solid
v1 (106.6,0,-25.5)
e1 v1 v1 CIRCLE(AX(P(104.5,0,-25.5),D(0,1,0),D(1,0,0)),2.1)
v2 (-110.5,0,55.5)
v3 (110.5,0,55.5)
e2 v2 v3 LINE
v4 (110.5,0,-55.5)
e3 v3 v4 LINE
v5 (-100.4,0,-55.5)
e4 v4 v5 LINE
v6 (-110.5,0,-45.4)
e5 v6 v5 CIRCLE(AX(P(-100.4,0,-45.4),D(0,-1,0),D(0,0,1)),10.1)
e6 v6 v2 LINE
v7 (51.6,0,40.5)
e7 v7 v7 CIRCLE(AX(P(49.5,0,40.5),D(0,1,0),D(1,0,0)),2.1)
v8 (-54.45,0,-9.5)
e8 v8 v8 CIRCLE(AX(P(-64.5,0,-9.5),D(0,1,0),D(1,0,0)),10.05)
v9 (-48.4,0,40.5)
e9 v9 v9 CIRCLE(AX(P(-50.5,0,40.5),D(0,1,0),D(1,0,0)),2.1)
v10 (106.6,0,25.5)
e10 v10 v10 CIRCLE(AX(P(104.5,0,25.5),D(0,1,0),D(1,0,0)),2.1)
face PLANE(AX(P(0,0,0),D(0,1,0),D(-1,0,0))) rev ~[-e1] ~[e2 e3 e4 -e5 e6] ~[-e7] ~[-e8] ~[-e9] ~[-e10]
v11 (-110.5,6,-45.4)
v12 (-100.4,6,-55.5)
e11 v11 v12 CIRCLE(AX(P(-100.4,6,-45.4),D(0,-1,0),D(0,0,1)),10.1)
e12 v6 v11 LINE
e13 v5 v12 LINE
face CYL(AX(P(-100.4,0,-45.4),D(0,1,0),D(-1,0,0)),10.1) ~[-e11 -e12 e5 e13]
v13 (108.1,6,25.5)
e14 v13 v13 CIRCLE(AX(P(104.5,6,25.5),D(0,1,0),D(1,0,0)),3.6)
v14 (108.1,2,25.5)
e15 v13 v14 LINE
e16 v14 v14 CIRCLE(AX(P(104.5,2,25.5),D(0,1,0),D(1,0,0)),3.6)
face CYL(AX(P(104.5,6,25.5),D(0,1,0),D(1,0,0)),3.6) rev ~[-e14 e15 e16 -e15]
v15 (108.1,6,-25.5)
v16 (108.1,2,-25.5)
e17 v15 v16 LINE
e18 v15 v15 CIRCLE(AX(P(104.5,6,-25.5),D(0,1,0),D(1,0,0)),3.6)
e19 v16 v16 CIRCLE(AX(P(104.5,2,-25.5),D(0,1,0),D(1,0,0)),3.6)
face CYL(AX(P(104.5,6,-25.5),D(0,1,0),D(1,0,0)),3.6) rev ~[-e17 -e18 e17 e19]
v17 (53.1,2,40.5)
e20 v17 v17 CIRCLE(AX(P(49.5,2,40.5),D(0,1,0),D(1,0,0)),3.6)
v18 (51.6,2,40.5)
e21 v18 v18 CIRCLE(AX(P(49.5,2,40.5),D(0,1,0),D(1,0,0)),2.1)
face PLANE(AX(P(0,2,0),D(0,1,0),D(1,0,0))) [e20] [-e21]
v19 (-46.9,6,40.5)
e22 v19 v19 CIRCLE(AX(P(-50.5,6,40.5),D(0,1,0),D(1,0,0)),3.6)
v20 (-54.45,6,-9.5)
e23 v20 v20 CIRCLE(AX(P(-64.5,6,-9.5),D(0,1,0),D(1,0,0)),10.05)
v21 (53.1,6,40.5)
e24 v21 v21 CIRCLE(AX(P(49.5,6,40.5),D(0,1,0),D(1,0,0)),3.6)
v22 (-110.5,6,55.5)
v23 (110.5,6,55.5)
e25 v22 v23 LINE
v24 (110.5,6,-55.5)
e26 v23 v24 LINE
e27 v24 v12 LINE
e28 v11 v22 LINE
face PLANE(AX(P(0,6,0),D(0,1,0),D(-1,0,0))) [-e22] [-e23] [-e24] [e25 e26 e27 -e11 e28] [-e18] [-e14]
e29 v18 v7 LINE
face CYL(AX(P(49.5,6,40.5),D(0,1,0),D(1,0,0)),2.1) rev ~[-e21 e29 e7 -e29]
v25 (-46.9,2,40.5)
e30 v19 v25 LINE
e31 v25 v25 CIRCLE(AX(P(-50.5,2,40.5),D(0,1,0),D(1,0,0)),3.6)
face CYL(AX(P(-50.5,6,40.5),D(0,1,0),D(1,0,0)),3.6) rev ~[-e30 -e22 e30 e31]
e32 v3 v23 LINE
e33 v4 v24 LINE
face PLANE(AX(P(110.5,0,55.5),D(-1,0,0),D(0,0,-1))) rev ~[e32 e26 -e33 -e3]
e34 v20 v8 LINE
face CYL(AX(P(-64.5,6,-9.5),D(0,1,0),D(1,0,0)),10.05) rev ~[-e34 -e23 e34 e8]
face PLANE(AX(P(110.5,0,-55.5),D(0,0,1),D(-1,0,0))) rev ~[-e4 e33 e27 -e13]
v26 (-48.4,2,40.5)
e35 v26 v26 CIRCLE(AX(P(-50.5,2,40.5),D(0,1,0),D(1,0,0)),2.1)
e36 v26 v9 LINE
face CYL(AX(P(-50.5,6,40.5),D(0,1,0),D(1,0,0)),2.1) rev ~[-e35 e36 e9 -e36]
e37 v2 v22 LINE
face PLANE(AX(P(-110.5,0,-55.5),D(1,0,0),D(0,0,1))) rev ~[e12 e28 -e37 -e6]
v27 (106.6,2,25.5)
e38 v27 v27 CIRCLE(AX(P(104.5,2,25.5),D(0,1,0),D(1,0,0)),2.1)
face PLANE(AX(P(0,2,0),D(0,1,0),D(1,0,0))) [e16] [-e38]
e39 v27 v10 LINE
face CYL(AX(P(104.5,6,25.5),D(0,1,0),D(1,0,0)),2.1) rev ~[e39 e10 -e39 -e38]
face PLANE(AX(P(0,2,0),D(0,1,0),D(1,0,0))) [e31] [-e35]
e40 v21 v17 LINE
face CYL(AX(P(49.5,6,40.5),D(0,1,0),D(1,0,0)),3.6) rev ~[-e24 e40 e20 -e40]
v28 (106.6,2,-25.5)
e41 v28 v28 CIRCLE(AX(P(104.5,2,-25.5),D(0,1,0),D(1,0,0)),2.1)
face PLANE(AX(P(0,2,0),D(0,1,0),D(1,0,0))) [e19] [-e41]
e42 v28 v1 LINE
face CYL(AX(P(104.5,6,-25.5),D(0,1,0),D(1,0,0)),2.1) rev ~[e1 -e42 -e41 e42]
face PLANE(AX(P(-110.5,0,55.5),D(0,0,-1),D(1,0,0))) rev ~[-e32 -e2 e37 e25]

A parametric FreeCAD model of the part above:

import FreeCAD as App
import Part
import Sketcher
from FreeCAD import Vector


def edges_at(feature, points):
    """Names of the edges that pass closest to the given points."""
    edges = feature.Shape.Edges
    near = lambda p: min(range(len(edges)), key=lambda i: edges[i].distToShape(Part.Vertex(*p))[0])
    return sorted({f"Edge{near(p) + 1}" for p in points})

doc = App.newDocument("Part")
params = doc.addObject("Spreadsheet::Sheet", "Params")
for row, (alias, value) in enumerate([
    ("sketch1_width", "221 mm"),
    ("sketch1_height", "111 mm"),
    ("pad1_length", "6 mm"),
    ("fillet_radius", "10.1 mm"),
    ("sketch2_diameter", "20.1 mm"),
    ("pocket1_length", "6 mm"),
    ("sketch3_diameter", "4.2 mm"),
    ("pocket2_length", "10 mm"),
    ("sketch4_diameter", "7.2 mm"),
    ("pocket3_length", "4 mm"),
    ("sketch5_diameter", "4.2 mm"),
    ("pocket4_length", "6 mm"),
    ("sketch6_diameter", "7.2 mm"),
    ("pocket5_length", "4 mm"),
], start=1):
    params.set(f"A{row}", alias)
    params.set(f"B{row}", "=" + value)
    params.setAlias(f"B{row}", alias)

body = doc.addObject("PartDesign::Body", "Body")

# Sketch on XZ plane
sketch1 = body.newObject("Sketcher::SketchObject", "Sketch")
sketch1.AttachmentSupport = (doc.getObject("XZ_Plane"), [""])
sketch1.MapMode = "FlatFace"
sketch1.addGeometry(Part.LineSegment(Vector(-110.5, -55.5, 0), Vector(-110.5, 55.5, 0)), False)
sketch1.addGeometry(Part.LineSegment(Vector(-110.5, 55.5, 0), Vector(110.5, 55.5, 0)), False)
sketch1.addGeometry(Part.LineSegment(Vector(110.5, 55.5, 0), Vector(110.5, -55.5, 0)), False)
sketch1.addGeometry(Part.LineSegment(Vector(110.5, -55.5, 0), Vector(-110.5, -55.5, 0)), False)
sketch1.addConstraint(Sketcher.Constraint("Coincident", 0, 2, 1, 1))
sketch1.addConstraint(Sketcher.Constraint("Coincident", 1, 2, 2, 1))
sketch1.addConstraint(Sketcher.Constraint("Coincident", 2, 2, 3, 1))
sketch1.addConstraint(Sketcher.Constraint("Coincident", 3, 2, 0, 1))
sketch1.addConstraint(Sketcher.Constraint("Vertical", 0))
sketch1.addConstraint(Sketcher.Constraint("Horizontal", 1))
sketch1.addConstraint(Sketcher.Constraint("Vertical", 2))
sketch1.addConstraint(Sketcher.Constraint("Horizontal", 3))
sketch1.addConstraint(Sketcher.Constraint("Symmetric", 0, 2, 2, 2, -1, 1))
sketch1.addConstraint(Sketcher.Constraint("DistanceX", 1, 1, 1, 2, 221.0))
sketch1.addConstraint(Sketcher.Constraint("DistanceY", 0, 1, 0, 2, 111.0))
sketch1.setExpression("Constraints[9]", "Params.sketch1_width")
sketch1.setExpression("Constraints[10]", "Params.sketch1_height")
pad1 = body.newObject("PartDesign::Pad", "Pad")
pad1.Profile = sketch1
pad1.setExpression("Length", "Params.pad1_length")
pad1.Reversed = True
doc.recompute()

fillet = body.newObject("PartDesign::Fillet", "Fillet")
fillet.Base = (pad1, edges_at(pad1, [(-110.5, 3, -55.5)]))
fillet.setExpression("Radius", "Params.fillet_radius")

# Sketch on XZ plane
sketch2 = body.newObject("Sketcher::SketchObject", "Sketch001")
sketch2.AttachmentSupport = (doc.getObject("XZ_Plane"), [""])
sketch2.MapMode = "FlatFace"
sketch2.AttachmentOffset = App.Placement(Vector(0, 0, -6), App.Rotation())
sketch2.addGeometry(Part.Circle(Vector(-64.5, -9.5, 0), Vector(0, 0, 1), 10.05), False)
sketch2.addConstraint(Sketcher.Constraint("Diameter", 0, 20.1))
sketch2.addConstraint(Sketcher.Constraint("DistanceX", 0, 3, -1, 1, 64.5))
sketch2.addConstraint(Sketcher.Constraint("DistanceY", 0, 3, -1, 1, 9.5))
sketch2.setExpression("Constraints[0]", "Params.sketch2_diameter")
pocket1 = body.newObject("PartDesign::Pocket", "Pocket")
pocket1.Profile = sketch2
pocket1.setExpression("Length", "Params.pocket1_length")
pocket1.Reversed = True

# Sketch on XZ plane
sketch3 = body.newObject("Sketcher::SketchObject", "Sketch002")
sketch3.AttachmentSupport = (doc.getObject("XZ_Plane"), [""])
sketch3.MapMode = "FlatFace"
sketch3.AttachmentOffset = App.Placement(Vector(0, 0, -6), App.Rotation())
sketch3.addGeometry(Part.Circle(Vector(104.5, 25.5, 0), Vector(0, 0, 1), 2.1), False)
sketch3.addGeometry(Part.Circle(Vector(104.5, -25.5, 0), Vector(0, 0, 1), 2.1), False)
sketch3.addConstraint(Sketcher.Constraint("Equal", 0, 1))
sketch3.addConstraint(Sketcher.Constraint("Symmetric", 0, 3, 1, 3, -1))
sketch3.addConstraint(Sketcher.Constraint("Diameter", 0, 4.2))
sketch3.addConstraint(Sketcher.Constraint("DistanceY", 1, 3, 0, 3, 51.0))
sketch3.addConstraint(Sketcher.Constraint("DistanceX", -1, 1, 0, 3, 104.5))
sketch3.setExpression("Constraints[2]", "Params.sketch3_diameter")
pocket2 = body.newObject("PartDesign::Pocket", "Pocket001")
pocket2.Profile = sketch3
pocket2.setExpression("Length", "Params.pocket2_length")
pocket2.Reversed = True

# Sketch on XZ plane
sketch4 = body.newObject("Sketcher::SketchObject", "Sketch003")
sketch4.AttachmentSupport = (doc.getObject("XZ_Plane"), [""])
sketch4.MapMode = "FlatFace"
sketch4.AttachmentOffset = App.Placement(Vector(0, 0, -6), App.Rotation())
sketch4.addGeometry(Part.Circle(Vector(104.5, 25.5, 0), Vector(0, 0, 1), 3.6), False)
sketch4.addGeometry(Part.Circle(Vector(104.5, -25.5, 0), Vector(0, 0, 1), 3.6), False)
sketch4.addConstraint(Sketcher.Constraint("Equal", 0, 1))
sketch4.addConstraint(Sketcher.Constraint("Symmetric", 0, 3, 1, 3, -1))
sketch4.addConstraint(Sketcher.Constraint("Diameter", 0, 7.2))
sketch4.addConstraint(Sketcher.Constraint("DistanceY", 1, 3, 0, 3, 51.0))
sketch4.addConstraint(Sketcher.Constraint("DistanceX", -1, 1, 0, 3, 104.5))
sketch4.setExpression("Constraints[2]", "Params.sketch4_diameter")
pocket3 = body.newObject("PartDesign::Pocket", "Pocket002")
pocket3.Profile = sketch4
pocket3.setExpression("Length", "Params.pocket3_length")
pocket3.Reversed = True

# Sketch on XZ plane
sketch5 = body.newObject("Sketcher::SketchObject", "Sketch004")
sketch5.AttachmentSupport = (doc.getObject("XZ_Plane"), [""])
sketch5.MapMode = "FlatFace"
sketch5.AttachmentOffset = App.Placement(Vector(0, 0, -6), App.Rotation())
sketch5.addGeometry(Part.Circle(Vector(49.5, 40.5, 0), Vector(0, 0, 1), 2.1), False)
sketch5.addGeometry(Part.Circle(Vector(-50.5, 40.5, 0), Vector(0, 0, 1), 2.1), False)
sketch5.addConstraint(Sketcher.Constraint("Equal", 0, 1))
sketch5.addConstraint(Sketcher.Constraint("Horizontal", 0, 3, 1, 3))
sketch5.addConstraint(Sketcher.Constraint("Diameter", 0, 4.2))
sketch5.addConstraint(Sketcher.Constraint("DistanceX", 1, 3, 0, 3, 100.0))
sketch5.addConstraint(Sketcher.Constraint("DistanceX", -1, 1, 0, 3, 49.5))
sketch5.addConstraint(Sketcher.Constraint("DistanceY", -1, 1, 0, 3, 40.5))
sketch5.setExpression("Constraints[2]", "Params.sketch5_diameter")
pocket4 = body.newObject("PartDesign::Pocket", "Pocket003")
pocket4.Profile = sketch5
pocket4.setExpression("Length", "Params.pocket4_length")
pocket4.Reversed = True

# Sketch on XZ plane
sketch6 = body.newObject("Sketcher::SketchObject", "Sketch005")
sketch6.AttachmentSupport = (doc.getObject("XZ_Plane"), [""])
sketch6.MapMode = "FlatFace"
sketch6.AttachmentOffset = App.Placement(Vector(0, 0, -6), App.Rotation())
sketch6.addGeometry(Part.Circle(Vector(49.5, 40.5, 0), Vector(0, 0, 1), 3.6), False)
sketch6.addGeometry(Part.Circle(Vector(-50.5, 40.5, 0), Vector(0, 0, 1), 3.6), False)
sketch6.addConstraint(Sketcher.Constraint("Equal", 0, 1))
sketch6.addConstraint(Sketcher.Constraint("Horizontal", 0, 3, 1, 3))
sketch6.addConstraint(Sketcher.Constraint("Diameter", 0, 7.2))
sketch6.addConstraint(Sketcher.Constraint("DistanceX", 1, 3, 0, 3, 100.0))
sketch6.addConstraint(Sketcher.Constraint("DistanceX", -1, 1, 0, 3, 49.5))
sketch6.addConstraint(Sketcher.Constraint("DistanceY", -1, 1, 0, 3, 40.5))
sketch6.setExpression("Constraints[2]", "Params.sketch6_diameter")
pocket5 = body.newObject("PartDesign::Pocket", "Pocket004")
pocket5.Profile = sketch6
pocket5.setExpression("Length", "Params.pocket5_length")
pocket5.Reversed = True

doc.recompute()
